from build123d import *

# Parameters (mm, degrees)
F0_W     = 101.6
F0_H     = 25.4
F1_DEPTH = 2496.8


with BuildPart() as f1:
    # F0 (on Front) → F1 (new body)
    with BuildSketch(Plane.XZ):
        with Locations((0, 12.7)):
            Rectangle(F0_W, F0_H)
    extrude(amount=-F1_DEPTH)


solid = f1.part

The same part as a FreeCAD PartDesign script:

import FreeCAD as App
import Part
import Sketcher
from FreeCAD import Vector
Q = App.Units.Quantity

doc = App.newDocument("Part")
body = doc.addObject("PartDesign::Body", "Body")

sketch1 = body.newObject("Sketcher::SketchObject", "Sketch")
sketch1.AttachmentSupport = (doc.getObject("XZ_Plane"), [""])
sketch1.MapMode = "FlatFace"
sketch1.addGeometry(Part.LineSegment(Vector(-51, 25, 0), Vector(-51, 0, 0)), False)
sketch1.addGeometry(Part.LineSegment(Vector(-51, 0, 0), Vector(51, 0, 0)), False)
sketch1.addGeometry(Part.LineSegment(Vector(51, 0, 0), Vector(51, 25, 0)), False)
sketch1.addGeometry(Part.LineSegment(Vector(51, 25, 0), Vector(-51, 25, 0)), False)
sketch1.addConstraint(Sketcher.Constraint("Coincident", 0, 2, 1, 1))
sketch1.addConstraint(Sketcher.Constraint("Coincident", 1, 2, 2, 1))
sketch1.addConstraint(Sketcher.Constraint("Coincident", 2, 2, 3, 1))
sketch1.addConstraint(Sketcher.Constraint("Coincident", 3, 2, 0, 1))
sketch1.addConstraint(Sketcher.Constraint("Vertical", 0))
sketch1.addConstraint(Sketcher.Constraint("Horizontal", 1))
sketch1.addConstraint(Sketcher.Constraint("Vertical", 2))
sketch1.addConstraint(Sketcher.Constraint("Horizontal", 3))
sketch1.addConstraint(Sketcher.Constraint("Symmetric", 0, 2, 1, 2, -1, 1))
sketch1.addConstraint(Sketcher.Constraint("DistanceX", 1, 1, 1, 2, Q("4 in")))
sketch1.addConstraint(Sketcher.Constraint("DistanceY", 0, 2, 0, 1, Q("1 in")))
pad1 = body.newObject("PartDesign::Pad", "Pad")
pad1.Profile = sketch1
pad1.Length = 2496.8
pad1.Reversed = True

doc.recompute()
